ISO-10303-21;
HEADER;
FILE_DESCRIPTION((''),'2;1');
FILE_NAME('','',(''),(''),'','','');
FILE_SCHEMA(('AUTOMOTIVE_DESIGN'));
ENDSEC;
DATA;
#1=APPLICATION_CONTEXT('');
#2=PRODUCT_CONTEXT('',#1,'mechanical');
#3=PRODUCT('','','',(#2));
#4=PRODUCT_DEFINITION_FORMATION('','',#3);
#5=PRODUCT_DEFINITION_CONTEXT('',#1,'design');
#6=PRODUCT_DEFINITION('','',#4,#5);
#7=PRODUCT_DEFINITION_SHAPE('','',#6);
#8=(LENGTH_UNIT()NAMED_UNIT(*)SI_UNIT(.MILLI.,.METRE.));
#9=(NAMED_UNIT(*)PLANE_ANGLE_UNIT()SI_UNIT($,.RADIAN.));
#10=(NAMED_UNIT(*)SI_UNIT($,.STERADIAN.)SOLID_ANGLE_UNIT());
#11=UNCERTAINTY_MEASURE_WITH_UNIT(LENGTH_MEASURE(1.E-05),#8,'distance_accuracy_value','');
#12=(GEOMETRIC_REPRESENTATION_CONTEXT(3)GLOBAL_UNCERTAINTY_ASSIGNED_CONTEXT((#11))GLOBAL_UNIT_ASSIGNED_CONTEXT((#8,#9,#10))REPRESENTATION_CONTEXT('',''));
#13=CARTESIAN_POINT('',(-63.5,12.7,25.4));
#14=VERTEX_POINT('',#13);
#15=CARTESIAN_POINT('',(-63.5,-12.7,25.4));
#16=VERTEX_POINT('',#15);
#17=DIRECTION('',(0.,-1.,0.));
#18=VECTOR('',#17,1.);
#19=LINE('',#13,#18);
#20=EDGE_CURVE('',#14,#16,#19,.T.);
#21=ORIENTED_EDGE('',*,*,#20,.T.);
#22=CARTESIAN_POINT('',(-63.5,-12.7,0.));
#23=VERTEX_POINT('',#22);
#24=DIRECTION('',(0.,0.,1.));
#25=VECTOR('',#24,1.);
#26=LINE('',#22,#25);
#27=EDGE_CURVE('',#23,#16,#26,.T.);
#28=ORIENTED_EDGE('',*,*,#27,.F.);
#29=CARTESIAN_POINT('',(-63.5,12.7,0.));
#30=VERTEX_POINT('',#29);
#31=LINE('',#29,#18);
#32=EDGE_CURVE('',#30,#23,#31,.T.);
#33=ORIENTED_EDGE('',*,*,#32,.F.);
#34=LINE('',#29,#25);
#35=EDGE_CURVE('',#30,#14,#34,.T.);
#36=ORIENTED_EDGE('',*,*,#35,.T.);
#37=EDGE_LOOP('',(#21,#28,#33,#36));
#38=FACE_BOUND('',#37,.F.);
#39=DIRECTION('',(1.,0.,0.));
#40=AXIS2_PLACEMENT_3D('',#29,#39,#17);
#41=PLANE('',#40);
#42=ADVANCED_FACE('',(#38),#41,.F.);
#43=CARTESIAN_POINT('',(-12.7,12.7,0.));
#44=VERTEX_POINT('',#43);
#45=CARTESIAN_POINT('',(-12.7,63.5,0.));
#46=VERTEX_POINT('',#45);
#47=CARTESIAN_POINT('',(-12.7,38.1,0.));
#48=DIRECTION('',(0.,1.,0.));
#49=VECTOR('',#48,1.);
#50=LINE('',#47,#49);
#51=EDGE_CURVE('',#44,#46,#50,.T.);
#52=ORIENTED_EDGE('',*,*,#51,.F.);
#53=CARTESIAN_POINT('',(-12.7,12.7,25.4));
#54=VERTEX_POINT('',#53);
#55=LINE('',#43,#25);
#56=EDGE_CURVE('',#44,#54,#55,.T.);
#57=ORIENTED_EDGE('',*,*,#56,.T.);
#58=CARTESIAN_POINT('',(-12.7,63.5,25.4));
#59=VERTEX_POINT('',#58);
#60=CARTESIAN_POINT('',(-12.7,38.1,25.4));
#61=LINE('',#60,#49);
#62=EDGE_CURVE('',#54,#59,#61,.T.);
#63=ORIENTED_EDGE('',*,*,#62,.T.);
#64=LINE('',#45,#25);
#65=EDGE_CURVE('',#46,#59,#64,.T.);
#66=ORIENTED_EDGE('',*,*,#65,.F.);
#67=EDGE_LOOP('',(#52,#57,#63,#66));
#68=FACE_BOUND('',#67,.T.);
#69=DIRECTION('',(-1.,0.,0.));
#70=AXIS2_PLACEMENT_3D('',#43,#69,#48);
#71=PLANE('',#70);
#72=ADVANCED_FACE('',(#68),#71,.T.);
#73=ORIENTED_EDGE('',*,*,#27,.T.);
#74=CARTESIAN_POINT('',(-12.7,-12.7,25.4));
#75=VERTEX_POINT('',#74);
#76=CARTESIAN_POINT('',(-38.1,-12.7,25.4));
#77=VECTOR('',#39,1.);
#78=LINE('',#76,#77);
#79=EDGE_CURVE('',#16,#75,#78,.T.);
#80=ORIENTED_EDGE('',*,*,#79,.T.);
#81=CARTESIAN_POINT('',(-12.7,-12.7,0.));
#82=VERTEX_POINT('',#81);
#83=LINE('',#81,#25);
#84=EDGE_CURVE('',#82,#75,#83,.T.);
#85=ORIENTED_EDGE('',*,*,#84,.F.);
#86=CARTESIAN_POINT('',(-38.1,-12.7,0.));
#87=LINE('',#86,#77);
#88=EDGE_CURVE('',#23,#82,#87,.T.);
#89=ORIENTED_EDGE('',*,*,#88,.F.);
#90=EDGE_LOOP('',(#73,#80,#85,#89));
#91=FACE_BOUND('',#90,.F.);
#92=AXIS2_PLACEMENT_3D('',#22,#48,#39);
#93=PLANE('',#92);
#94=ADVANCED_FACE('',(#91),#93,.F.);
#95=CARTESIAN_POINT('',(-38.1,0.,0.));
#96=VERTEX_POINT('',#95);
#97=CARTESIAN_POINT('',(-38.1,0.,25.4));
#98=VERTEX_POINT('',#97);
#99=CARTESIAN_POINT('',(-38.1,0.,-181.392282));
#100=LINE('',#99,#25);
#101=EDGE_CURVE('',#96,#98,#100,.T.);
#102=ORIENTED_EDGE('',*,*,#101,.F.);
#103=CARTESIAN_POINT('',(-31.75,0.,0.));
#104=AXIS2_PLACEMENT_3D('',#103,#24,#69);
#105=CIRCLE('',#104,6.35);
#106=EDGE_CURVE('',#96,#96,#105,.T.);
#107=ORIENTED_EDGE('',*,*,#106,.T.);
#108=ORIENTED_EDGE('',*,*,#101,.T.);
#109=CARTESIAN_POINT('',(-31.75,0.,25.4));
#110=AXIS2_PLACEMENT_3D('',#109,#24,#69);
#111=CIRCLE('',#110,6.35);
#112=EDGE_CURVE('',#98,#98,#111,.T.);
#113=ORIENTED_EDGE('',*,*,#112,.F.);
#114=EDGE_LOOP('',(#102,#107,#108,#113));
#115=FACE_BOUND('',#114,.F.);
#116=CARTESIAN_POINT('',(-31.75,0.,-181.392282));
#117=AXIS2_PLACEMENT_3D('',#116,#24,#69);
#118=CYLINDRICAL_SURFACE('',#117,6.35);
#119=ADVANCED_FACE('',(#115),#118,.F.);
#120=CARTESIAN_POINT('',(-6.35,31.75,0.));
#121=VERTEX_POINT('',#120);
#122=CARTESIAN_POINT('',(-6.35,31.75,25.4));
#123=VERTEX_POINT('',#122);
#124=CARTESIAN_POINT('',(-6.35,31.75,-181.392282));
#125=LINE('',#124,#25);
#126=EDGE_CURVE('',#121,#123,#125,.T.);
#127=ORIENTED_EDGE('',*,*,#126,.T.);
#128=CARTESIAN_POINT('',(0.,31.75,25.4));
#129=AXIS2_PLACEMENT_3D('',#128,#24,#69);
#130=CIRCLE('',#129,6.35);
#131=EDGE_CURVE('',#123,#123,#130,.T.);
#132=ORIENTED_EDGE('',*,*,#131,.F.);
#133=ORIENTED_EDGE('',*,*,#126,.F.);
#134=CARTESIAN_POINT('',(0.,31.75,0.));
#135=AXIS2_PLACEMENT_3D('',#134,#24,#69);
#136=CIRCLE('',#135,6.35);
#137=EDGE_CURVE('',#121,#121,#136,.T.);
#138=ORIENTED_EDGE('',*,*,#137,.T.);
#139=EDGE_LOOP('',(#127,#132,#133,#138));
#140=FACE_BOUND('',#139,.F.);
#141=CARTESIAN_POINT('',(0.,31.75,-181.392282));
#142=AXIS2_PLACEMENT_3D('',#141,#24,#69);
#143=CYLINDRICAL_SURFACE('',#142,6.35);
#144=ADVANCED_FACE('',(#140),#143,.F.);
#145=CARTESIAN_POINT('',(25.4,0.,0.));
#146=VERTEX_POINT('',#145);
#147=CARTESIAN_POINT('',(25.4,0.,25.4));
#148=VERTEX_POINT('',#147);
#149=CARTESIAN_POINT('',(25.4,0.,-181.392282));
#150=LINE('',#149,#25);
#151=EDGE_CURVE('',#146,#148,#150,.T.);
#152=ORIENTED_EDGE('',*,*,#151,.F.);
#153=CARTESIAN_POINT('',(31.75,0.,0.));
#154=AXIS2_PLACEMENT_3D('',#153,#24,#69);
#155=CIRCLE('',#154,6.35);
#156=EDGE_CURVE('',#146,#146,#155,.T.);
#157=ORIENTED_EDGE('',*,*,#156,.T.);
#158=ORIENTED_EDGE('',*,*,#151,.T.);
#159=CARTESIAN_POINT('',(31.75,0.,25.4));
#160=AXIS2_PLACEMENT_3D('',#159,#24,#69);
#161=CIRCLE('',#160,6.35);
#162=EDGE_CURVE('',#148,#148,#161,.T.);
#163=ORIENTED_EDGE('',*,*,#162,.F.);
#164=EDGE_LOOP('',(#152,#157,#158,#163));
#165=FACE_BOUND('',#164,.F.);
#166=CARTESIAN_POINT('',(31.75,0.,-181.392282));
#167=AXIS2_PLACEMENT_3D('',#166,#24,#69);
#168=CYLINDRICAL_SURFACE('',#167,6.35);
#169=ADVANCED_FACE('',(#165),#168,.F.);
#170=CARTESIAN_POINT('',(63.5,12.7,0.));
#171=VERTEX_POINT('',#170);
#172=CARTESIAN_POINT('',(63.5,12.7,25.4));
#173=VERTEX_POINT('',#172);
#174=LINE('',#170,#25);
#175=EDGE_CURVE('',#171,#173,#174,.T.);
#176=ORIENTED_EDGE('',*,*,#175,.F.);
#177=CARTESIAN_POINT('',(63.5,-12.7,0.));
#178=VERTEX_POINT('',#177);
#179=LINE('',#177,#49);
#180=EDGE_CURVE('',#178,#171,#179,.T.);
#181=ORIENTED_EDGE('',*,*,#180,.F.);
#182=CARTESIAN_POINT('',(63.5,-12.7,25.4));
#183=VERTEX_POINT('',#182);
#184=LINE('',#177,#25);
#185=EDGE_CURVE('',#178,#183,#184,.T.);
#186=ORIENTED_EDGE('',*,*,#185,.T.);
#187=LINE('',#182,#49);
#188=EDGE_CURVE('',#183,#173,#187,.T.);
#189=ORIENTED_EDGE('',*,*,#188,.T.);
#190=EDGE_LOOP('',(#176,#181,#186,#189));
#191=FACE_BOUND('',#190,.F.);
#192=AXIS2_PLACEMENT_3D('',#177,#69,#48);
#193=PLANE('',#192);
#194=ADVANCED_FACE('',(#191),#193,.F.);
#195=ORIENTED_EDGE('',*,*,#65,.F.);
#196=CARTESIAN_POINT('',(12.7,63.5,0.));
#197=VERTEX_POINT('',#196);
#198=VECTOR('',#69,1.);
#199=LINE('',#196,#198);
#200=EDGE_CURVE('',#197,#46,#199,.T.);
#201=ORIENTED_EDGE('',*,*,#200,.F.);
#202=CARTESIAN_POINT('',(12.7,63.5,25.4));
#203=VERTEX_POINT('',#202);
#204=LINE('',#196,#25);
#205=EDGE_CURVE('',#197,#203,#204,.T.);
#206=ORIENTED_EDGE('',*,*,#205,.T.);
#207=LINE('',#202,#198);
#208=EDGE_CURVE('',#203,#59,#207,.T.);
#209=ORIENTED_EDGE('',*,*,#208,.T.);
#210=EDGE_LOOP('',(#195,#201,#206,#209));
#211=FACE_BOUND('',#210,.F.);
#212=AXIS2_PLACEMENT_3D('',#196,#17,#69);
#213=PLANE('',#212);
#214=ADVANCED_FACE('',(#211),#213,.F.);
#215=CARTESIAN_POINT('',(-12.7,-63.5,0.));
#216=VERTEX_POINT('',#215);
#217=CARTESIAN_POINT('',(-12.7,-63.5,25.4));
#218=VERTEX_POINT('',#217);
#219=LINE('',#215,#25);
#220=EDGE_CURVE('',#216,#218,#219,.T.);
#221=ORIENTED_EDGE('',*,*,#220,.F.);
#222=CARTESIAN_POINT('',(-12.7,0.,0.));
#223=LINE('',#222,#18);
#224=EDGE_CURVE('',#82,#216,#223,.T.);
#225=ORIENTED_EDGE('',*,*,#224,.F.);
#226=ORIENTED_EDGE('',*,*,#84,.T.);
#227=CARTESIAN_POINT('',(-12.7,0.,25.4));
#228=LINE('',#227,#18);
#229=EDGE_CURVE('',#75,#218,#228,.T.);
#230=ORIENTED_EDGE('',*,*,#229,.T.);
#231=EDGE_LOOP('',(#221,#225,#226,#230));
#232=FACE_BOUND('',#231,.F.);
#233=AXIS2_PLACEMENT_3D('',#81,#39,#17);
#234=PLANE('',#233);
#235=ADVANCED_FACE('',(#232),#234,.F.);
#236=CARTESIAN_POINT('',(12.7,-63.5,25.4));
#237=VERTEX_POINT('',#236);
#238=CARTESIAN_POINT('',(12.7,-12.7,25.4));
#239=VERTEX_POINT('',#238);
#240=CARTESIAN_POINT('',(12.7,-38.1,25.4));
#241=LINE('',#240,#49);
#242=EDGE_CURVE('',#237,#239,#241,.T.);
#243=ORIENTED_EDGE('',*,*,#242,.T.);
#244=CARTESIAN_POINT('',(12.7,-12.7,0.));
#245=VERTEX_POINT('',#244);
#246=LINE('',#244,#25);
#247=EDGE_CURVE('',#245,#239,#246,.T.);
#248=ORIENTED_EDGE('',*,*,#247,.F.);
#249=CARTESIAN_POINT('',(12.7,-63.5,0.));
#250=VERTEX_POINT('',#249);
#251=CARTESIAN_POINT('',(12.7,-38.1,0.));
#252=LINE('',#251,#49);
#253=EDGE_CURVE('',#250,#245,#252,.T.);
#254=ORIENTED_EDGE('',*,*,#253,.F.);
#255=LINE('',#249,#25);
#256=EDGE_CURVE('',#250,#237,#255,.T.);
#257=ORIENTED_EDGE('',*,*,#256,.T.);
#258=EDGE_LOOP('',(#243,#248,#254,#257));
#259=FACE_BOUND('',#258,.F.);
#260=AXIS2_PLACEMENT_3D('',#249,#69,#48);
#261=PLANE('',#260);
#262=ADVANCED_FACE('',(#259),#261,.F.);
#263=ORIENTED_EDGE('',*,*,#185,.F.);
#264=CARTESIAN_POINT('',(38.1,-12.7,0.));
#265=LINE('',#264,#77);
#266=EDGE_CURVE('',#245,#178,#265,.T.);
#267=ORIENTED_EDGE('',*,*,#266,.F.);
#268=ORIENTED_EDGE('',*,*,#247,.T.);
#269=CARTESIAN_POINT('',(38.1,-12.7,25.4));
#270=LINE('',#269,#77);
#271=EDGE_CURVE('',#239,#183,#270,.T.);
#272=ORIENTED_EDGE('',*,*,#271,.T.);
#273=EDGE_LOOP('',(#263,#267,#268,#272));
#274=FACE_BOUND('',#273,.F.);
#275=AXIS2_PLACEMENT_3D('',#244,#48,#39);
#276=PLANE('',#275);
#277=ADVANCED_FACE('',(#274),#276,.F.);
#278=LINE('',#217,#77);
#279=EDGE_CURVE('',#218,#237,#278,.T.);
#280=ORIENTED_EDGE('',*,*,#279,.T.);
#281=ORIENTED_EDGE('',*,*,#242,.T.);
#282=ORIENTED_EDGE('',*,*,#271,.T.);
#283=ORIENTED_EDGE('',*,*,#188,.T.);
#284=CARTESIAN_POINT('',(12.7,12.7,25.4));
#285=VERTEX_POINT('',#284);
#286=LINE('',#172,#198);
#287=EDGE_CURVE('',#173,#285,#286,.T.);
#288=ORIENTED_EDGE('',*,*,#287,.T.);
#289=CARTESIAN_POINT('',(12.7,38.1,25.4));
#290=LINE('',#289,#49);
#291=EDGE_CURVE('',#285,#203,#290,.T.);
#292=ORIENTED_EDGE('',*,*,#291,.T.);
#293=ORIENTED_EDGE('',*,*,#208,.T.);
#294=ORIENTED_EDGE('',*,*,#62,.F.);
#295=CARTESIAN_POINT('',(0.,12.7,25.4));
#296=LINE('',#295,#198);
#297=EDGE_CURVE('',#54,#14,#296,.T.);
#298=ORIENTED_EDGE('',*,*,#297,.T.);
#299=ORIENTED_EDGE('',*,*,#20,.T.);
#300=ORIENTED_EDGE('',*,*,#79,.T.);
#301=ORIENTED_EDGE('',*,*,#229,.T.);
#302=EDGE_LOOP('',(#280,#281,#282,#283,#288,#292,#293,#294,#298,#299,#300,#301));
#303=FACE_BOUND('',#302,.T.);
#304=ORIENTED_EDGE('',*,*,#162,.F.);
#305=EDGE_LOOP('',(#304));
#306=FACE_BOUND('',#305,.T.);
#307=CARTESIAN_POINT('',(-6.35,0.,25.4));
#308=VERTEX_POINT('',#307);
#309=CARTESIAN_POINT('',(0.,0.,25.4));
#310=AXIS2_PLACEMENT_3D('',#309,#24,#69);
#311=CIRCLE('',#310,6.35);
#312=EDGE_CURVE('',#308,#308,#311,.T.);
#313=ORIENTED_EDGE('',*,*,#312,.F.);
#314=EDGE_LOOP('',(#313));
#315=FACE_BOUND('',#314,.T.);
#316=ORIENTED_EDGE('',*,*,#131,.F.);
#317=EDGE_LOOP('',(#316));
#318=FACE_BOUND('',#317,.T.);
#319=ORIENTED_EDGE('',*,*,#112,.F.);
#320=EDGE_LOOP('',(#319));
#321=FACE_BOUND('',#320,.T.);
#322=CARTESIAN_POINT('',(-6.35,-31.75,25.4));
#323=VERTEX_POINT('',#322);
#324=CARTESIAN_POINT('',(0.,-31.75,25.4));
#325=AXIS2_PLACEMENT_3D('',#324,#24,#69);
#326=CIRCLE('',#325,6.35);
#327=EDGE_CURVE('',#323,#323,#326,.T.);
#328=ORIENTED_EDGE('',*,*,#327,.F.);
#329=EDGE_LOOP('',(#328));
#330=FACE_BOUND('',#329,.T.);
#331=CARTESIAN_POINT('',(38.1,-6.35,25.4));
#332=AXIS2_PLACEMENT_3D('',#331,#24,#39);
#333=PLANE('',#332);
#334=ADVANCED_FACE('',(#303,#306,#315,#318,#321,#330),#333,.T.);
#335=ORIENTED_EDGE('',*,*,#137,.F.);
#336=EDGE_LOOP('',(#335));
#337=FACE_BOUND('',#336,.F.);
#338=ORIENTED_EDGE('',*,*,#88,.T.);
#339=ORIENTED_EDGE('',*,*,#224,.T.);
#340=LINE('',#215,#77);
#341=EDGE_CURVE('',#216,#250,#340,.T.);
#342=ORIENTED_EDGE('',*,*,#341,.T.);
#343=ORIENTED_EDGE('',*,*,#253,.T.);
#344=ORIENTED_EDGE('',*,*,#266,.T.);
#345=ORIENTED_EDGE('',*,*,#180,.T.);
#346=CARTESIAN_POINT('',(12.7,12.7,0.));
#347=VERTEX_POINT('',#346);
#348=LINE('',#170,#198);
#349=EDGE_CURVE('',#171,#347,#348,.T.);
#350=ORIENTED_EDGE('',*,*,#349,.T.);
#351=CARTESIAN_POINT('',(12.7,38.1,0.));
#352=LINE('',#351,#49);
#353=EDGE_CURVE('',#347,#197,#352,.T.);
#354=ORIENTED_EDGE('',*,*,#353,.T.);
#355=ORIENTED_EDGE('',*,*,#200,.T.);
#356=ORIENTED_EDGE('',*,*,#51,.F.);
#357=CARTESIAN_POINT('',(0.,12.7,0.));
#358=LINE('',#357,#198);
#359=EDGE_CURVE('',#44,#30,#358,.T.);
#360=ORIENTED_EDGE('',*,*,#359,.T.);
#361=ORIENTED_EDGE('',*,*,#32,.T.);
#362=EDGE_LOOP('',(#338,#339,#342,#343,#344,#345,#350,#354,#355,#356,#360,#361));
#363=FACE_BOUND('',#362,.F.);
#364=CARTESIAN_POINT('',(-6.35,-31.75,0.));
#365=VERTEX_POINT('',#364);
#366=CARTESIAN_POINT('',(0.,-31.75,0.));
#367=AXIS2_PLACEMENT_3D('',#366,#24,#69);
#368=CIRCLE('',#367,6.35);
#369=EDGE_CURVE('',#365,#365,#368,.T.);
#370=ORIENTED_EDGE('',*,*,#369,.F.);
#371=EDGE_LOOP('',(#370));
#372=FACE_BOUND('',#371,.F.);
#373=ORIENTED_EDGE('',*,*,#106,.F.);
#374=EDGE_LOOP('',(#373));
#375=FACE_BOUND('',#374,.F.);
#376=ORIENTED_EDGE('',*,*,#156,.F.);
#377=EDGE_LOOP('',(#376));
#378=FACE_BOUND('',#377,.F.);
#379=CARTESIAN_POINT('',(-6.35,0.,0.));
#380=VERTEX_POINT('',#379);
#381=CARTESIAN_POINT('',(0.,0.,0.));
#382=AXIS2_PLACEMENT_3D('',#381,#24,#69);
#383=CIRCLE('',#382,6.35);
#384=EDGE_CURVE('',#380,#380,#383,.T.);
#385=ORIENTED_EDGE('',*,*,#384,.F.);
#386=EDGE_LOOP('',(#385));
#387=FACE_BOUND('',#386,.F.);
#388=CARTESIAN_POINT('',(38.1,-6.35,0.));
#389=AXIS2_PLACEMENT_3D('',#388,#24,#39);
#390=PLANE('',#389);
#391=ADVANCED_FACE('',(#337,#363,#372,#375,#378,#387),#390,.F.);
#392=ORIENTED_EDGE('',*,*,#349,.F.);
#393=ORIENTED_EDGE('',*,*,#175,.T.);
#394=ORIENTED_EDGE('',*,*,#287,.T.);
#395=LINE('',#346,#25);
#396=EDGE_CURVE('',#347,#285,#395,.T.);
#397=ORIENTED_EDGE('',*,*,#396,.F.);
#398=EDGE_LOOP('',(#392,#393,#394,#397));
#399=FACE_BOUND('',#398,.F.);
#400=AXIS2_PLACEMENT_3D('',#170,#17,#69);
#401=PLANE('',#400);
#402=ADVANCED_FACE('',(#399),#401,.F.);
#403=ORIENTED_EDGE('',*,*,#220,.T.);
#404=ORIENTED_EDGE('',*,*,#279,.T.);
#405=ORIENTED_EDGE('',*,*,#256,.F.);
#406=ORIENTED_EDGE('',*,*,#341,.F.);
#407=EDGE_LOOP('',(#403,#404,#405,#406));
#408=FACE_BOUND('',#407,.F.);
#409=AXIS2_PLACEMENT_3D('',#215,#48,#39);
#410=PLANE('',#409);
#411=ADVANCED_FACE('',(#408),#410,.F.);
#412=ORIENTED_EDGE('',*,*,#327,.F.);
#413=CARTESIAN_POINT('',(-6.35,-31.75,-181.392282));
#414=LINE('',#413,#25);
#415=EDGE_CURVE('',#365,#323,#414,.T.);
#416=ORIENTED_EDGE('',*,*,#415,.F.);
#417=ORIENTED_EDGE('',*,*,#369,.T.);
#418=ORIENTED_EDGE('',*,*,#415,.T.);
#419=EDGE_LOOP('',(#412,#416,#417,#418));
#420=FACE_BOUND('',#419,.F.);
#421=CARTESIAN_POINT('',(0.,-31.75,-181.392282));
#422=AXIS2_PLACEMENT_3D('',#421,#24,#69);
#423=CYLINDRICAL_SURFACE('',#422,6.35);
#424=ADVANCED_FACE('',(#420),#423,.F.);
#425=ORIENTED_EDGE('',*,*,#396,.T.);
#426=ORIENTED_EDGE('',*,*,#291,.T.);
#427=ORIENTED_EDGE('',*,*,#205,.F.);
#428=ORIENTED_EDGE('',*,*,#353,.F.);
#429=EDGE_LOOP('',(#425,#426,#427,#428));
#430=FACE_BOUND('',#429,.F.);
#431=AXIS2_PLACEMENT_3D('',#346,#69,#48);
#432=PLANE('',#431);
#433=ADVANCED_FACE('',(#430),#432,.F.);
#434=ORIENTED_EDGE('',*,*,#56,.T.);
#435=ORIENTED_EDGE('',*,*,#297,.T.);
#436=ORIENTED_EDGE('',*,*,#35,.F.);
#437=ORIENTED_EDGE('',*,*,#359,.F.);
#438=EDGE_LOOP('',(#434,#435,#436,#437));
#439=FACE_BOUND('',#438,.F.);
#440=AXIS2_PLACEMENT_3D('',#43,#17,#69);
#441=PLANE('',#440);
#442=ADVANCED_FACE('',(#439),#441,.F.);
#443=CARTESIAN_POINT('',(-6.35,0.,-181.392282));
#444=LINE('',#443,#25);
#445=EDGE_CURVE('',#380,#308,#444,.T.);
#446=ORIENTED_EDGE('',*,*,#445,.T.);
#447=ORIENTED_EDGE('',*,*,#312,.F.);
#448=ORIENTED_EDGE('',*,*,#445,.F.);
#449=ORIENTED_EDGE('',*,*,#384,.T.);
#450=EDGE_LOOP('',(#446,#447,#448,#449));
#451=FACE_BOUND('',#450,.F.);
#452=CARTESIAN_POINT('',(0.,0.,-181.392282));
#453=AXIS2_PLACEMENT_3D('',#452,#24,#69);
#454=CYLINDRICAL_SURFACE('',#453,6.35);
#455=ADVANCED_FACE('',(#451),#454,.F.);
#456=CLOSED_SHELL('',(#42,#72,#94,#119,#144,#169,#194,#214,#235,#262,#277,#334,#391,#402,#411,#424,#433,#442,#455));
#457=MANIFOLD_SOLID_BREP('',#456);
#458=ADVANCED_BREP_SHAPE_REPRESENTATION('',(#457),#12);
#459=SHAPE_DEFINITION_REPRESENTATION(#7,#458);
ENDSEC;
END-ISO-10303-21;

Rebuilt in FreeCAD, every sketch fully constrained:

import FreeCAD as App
import Part
import Sketcher

V = App.Vector
Q = App.Units.Quantity


def add_polygon(sketch, points):
    """Adds a closed chain of lines whose ends are joined by coincident constraints."""
    first, n = sketch.GeometryCount, len(points)
    for a, b in zip(points, points[1:] + points[:1]):
        sketch.addGeometry(Part.LineSegment(App.Vector(*a, 0), App.Vector(*b, 0)), False)
    for i in range(n):
        sketch.addConstraint(Sketcher.Constraint("Coincident", first + i, 2, first + (i + 1) % n, 1))

doc = App.newDocument("Part")
body = doc.addObject("PartDesign::Body", "Body")

sketch1 = body.newObject("Sketcher::SketchObject", "Sketch")
sketch1.AttachmentSupport = (doc.getObject("XY_Plane"), [""])
sketch1.MapMode = "FlatFace"
add_polygon(sketch1, [(-13, -64), (13, -64), (13, -13), (64, -13), (64, 13), (13, 13), (13, 64), (-13, 64), (-13, 13), (-64, 13), (-64, -13), (-13, -13)])
sketch1.addConstraint(Sketcher.Constraint("Horizontal", 0))
sketch1.addConstraint(Sketcher.Constraint("Vertical", 1))
sketch1.addConstraint(Sketcher.Constraint("Horizontal", 2))
sketch1.addConstraint(Sketcher.Constraint("Vertical", 3))
sketch1.addConstraint(Sketcher.Constraint("Horizontal", 4))
sketch1.addConstraint(Sketcher.Constraint("Vertical", 5))
sketch1.addConstraint(Sketcher.Constraint("Horizontal", 6))
sketch1.addConstraint(Sketcher.Constraint("Vertical", 7))
sketch1.addConstraint(Sketcher.Constraint("Horizontal", 8))
sketch1.addConstraint(Sketcher.Constraint("Vertical", 9))
sketch1.addConstraint(Sketcher.Constraint("Horizontal", 10))
sketch1.addConstraint(Sketcher.Constraint("Vertical", 11))
sketch1.addConstraint(Sketcher.Constraint("Symmetric", 0, 2, 6, 2, -1, 1))
sketch1.addConstraint(Sketcher.Constraint("Symmetric", 2, 2, 8, 2, -1, 1))
sketch1.addConstraint(Sketcher.Constraint("Symmetric", 4, 2, 10, 2, -1, 1))
sketch1.addConstraint(Sketcher.Constraint("Symmetric", 4, 2, 7, 2, -2))
sketch1.addConstraint(Sketcher.Constraint("Equal", 10, 1))
sketch1.addConstraint(Sketcher.Constraint("Equal", 6, 3))
sketch1.addConstraint(Sketcher.Constraint("DistanceX", 0, 1, 0, 2, Q("1 in")))
sketch1.addConstraint(Sketcher.Constraint("DistanceX", 2, 1, 2, 2, Q("2 in")))
pad1 = body.newObject("PartDesign::Pad", "Pad")
pad1.Profile = sketch1
pad1.Length = Q("1 in")

sketch2 = body.newObject("Sketcher::SketchObject", "Sketch001")
sketch2.AttachmentSupport = (doc.getObject("XY_Plane"), [""])
sketch2.MapMode = "FlatFace"
sketch2.addGeometry(Part.Circle(V(32, 0, 0), V(0, 0, 1), 6), False)
sketch2.addGeometry(Part.Circle(V(0, 32, 0), V(0, 0, 1), 6), False)
sketch2.addGeometry(Part.Circle(V(-32, 0, 0), V(0, 0, 1), 6), False)
sketch2.addGeometry(Part.Circle(V(0, 0, 0), V(0, 0, 1), 6), False)
sketch2.addGeometry(Part.Circle(V(0, -32, 0), V(0, 0, 1), 6), False)
sketch2.addConstraint(Sketcher.Constraint("Coincident", 3, 3, -1, 1))
sketch2.addConstraint(Sketcher.Constraint("Equal", 0, 1))
sketch2.addConstraint(Sketcher.Constraint("Equal", 1, 2))
sketch2.addConstraint(Sketcher.Constraint("Equal", 2, 3))
sketch2.addConstraint(Sketcher.Constraint("Equal", 3, 4))
sketch2.addConstraint(Sketcher.Constraint("Symmetric", 0, 3, 2, 3, -1, 1))
sketch2.addConstraint(Sketcher.Constraint("Symmetric", 1, 3, 4, 3, -1, 1))
sketch2.addConstraint(Sketcher.Constraint("PointOnObject", 0, 3, -1))
sketch2.addConstraint(Sketcher.Constraint("PointOnObject", 1, 3, -2))
sketch2.addConstraint(Sketcher.Constraint("Diameter", 0, Q("0.5 in")))
sketch2.addConstraint(Sketcher.Constraint("DistanceX", 2, 3, 0, 3, Q("2.5 in")))
sketch2.addConstraint(Sketcher.Constraint("DistanceY", 4, 3, 1, 3, Q("2.5 in")))
doc.recompute()
hole = body.newObject("PartDesign::Hole", "Hole")
hole.Profile = sketch2
hole.ThreadType = "None"
hole.Diameter = Q("0.5 in")
hole.DepthType = "ThroughAll"
hole.Reversed = True

doc.recompute()
